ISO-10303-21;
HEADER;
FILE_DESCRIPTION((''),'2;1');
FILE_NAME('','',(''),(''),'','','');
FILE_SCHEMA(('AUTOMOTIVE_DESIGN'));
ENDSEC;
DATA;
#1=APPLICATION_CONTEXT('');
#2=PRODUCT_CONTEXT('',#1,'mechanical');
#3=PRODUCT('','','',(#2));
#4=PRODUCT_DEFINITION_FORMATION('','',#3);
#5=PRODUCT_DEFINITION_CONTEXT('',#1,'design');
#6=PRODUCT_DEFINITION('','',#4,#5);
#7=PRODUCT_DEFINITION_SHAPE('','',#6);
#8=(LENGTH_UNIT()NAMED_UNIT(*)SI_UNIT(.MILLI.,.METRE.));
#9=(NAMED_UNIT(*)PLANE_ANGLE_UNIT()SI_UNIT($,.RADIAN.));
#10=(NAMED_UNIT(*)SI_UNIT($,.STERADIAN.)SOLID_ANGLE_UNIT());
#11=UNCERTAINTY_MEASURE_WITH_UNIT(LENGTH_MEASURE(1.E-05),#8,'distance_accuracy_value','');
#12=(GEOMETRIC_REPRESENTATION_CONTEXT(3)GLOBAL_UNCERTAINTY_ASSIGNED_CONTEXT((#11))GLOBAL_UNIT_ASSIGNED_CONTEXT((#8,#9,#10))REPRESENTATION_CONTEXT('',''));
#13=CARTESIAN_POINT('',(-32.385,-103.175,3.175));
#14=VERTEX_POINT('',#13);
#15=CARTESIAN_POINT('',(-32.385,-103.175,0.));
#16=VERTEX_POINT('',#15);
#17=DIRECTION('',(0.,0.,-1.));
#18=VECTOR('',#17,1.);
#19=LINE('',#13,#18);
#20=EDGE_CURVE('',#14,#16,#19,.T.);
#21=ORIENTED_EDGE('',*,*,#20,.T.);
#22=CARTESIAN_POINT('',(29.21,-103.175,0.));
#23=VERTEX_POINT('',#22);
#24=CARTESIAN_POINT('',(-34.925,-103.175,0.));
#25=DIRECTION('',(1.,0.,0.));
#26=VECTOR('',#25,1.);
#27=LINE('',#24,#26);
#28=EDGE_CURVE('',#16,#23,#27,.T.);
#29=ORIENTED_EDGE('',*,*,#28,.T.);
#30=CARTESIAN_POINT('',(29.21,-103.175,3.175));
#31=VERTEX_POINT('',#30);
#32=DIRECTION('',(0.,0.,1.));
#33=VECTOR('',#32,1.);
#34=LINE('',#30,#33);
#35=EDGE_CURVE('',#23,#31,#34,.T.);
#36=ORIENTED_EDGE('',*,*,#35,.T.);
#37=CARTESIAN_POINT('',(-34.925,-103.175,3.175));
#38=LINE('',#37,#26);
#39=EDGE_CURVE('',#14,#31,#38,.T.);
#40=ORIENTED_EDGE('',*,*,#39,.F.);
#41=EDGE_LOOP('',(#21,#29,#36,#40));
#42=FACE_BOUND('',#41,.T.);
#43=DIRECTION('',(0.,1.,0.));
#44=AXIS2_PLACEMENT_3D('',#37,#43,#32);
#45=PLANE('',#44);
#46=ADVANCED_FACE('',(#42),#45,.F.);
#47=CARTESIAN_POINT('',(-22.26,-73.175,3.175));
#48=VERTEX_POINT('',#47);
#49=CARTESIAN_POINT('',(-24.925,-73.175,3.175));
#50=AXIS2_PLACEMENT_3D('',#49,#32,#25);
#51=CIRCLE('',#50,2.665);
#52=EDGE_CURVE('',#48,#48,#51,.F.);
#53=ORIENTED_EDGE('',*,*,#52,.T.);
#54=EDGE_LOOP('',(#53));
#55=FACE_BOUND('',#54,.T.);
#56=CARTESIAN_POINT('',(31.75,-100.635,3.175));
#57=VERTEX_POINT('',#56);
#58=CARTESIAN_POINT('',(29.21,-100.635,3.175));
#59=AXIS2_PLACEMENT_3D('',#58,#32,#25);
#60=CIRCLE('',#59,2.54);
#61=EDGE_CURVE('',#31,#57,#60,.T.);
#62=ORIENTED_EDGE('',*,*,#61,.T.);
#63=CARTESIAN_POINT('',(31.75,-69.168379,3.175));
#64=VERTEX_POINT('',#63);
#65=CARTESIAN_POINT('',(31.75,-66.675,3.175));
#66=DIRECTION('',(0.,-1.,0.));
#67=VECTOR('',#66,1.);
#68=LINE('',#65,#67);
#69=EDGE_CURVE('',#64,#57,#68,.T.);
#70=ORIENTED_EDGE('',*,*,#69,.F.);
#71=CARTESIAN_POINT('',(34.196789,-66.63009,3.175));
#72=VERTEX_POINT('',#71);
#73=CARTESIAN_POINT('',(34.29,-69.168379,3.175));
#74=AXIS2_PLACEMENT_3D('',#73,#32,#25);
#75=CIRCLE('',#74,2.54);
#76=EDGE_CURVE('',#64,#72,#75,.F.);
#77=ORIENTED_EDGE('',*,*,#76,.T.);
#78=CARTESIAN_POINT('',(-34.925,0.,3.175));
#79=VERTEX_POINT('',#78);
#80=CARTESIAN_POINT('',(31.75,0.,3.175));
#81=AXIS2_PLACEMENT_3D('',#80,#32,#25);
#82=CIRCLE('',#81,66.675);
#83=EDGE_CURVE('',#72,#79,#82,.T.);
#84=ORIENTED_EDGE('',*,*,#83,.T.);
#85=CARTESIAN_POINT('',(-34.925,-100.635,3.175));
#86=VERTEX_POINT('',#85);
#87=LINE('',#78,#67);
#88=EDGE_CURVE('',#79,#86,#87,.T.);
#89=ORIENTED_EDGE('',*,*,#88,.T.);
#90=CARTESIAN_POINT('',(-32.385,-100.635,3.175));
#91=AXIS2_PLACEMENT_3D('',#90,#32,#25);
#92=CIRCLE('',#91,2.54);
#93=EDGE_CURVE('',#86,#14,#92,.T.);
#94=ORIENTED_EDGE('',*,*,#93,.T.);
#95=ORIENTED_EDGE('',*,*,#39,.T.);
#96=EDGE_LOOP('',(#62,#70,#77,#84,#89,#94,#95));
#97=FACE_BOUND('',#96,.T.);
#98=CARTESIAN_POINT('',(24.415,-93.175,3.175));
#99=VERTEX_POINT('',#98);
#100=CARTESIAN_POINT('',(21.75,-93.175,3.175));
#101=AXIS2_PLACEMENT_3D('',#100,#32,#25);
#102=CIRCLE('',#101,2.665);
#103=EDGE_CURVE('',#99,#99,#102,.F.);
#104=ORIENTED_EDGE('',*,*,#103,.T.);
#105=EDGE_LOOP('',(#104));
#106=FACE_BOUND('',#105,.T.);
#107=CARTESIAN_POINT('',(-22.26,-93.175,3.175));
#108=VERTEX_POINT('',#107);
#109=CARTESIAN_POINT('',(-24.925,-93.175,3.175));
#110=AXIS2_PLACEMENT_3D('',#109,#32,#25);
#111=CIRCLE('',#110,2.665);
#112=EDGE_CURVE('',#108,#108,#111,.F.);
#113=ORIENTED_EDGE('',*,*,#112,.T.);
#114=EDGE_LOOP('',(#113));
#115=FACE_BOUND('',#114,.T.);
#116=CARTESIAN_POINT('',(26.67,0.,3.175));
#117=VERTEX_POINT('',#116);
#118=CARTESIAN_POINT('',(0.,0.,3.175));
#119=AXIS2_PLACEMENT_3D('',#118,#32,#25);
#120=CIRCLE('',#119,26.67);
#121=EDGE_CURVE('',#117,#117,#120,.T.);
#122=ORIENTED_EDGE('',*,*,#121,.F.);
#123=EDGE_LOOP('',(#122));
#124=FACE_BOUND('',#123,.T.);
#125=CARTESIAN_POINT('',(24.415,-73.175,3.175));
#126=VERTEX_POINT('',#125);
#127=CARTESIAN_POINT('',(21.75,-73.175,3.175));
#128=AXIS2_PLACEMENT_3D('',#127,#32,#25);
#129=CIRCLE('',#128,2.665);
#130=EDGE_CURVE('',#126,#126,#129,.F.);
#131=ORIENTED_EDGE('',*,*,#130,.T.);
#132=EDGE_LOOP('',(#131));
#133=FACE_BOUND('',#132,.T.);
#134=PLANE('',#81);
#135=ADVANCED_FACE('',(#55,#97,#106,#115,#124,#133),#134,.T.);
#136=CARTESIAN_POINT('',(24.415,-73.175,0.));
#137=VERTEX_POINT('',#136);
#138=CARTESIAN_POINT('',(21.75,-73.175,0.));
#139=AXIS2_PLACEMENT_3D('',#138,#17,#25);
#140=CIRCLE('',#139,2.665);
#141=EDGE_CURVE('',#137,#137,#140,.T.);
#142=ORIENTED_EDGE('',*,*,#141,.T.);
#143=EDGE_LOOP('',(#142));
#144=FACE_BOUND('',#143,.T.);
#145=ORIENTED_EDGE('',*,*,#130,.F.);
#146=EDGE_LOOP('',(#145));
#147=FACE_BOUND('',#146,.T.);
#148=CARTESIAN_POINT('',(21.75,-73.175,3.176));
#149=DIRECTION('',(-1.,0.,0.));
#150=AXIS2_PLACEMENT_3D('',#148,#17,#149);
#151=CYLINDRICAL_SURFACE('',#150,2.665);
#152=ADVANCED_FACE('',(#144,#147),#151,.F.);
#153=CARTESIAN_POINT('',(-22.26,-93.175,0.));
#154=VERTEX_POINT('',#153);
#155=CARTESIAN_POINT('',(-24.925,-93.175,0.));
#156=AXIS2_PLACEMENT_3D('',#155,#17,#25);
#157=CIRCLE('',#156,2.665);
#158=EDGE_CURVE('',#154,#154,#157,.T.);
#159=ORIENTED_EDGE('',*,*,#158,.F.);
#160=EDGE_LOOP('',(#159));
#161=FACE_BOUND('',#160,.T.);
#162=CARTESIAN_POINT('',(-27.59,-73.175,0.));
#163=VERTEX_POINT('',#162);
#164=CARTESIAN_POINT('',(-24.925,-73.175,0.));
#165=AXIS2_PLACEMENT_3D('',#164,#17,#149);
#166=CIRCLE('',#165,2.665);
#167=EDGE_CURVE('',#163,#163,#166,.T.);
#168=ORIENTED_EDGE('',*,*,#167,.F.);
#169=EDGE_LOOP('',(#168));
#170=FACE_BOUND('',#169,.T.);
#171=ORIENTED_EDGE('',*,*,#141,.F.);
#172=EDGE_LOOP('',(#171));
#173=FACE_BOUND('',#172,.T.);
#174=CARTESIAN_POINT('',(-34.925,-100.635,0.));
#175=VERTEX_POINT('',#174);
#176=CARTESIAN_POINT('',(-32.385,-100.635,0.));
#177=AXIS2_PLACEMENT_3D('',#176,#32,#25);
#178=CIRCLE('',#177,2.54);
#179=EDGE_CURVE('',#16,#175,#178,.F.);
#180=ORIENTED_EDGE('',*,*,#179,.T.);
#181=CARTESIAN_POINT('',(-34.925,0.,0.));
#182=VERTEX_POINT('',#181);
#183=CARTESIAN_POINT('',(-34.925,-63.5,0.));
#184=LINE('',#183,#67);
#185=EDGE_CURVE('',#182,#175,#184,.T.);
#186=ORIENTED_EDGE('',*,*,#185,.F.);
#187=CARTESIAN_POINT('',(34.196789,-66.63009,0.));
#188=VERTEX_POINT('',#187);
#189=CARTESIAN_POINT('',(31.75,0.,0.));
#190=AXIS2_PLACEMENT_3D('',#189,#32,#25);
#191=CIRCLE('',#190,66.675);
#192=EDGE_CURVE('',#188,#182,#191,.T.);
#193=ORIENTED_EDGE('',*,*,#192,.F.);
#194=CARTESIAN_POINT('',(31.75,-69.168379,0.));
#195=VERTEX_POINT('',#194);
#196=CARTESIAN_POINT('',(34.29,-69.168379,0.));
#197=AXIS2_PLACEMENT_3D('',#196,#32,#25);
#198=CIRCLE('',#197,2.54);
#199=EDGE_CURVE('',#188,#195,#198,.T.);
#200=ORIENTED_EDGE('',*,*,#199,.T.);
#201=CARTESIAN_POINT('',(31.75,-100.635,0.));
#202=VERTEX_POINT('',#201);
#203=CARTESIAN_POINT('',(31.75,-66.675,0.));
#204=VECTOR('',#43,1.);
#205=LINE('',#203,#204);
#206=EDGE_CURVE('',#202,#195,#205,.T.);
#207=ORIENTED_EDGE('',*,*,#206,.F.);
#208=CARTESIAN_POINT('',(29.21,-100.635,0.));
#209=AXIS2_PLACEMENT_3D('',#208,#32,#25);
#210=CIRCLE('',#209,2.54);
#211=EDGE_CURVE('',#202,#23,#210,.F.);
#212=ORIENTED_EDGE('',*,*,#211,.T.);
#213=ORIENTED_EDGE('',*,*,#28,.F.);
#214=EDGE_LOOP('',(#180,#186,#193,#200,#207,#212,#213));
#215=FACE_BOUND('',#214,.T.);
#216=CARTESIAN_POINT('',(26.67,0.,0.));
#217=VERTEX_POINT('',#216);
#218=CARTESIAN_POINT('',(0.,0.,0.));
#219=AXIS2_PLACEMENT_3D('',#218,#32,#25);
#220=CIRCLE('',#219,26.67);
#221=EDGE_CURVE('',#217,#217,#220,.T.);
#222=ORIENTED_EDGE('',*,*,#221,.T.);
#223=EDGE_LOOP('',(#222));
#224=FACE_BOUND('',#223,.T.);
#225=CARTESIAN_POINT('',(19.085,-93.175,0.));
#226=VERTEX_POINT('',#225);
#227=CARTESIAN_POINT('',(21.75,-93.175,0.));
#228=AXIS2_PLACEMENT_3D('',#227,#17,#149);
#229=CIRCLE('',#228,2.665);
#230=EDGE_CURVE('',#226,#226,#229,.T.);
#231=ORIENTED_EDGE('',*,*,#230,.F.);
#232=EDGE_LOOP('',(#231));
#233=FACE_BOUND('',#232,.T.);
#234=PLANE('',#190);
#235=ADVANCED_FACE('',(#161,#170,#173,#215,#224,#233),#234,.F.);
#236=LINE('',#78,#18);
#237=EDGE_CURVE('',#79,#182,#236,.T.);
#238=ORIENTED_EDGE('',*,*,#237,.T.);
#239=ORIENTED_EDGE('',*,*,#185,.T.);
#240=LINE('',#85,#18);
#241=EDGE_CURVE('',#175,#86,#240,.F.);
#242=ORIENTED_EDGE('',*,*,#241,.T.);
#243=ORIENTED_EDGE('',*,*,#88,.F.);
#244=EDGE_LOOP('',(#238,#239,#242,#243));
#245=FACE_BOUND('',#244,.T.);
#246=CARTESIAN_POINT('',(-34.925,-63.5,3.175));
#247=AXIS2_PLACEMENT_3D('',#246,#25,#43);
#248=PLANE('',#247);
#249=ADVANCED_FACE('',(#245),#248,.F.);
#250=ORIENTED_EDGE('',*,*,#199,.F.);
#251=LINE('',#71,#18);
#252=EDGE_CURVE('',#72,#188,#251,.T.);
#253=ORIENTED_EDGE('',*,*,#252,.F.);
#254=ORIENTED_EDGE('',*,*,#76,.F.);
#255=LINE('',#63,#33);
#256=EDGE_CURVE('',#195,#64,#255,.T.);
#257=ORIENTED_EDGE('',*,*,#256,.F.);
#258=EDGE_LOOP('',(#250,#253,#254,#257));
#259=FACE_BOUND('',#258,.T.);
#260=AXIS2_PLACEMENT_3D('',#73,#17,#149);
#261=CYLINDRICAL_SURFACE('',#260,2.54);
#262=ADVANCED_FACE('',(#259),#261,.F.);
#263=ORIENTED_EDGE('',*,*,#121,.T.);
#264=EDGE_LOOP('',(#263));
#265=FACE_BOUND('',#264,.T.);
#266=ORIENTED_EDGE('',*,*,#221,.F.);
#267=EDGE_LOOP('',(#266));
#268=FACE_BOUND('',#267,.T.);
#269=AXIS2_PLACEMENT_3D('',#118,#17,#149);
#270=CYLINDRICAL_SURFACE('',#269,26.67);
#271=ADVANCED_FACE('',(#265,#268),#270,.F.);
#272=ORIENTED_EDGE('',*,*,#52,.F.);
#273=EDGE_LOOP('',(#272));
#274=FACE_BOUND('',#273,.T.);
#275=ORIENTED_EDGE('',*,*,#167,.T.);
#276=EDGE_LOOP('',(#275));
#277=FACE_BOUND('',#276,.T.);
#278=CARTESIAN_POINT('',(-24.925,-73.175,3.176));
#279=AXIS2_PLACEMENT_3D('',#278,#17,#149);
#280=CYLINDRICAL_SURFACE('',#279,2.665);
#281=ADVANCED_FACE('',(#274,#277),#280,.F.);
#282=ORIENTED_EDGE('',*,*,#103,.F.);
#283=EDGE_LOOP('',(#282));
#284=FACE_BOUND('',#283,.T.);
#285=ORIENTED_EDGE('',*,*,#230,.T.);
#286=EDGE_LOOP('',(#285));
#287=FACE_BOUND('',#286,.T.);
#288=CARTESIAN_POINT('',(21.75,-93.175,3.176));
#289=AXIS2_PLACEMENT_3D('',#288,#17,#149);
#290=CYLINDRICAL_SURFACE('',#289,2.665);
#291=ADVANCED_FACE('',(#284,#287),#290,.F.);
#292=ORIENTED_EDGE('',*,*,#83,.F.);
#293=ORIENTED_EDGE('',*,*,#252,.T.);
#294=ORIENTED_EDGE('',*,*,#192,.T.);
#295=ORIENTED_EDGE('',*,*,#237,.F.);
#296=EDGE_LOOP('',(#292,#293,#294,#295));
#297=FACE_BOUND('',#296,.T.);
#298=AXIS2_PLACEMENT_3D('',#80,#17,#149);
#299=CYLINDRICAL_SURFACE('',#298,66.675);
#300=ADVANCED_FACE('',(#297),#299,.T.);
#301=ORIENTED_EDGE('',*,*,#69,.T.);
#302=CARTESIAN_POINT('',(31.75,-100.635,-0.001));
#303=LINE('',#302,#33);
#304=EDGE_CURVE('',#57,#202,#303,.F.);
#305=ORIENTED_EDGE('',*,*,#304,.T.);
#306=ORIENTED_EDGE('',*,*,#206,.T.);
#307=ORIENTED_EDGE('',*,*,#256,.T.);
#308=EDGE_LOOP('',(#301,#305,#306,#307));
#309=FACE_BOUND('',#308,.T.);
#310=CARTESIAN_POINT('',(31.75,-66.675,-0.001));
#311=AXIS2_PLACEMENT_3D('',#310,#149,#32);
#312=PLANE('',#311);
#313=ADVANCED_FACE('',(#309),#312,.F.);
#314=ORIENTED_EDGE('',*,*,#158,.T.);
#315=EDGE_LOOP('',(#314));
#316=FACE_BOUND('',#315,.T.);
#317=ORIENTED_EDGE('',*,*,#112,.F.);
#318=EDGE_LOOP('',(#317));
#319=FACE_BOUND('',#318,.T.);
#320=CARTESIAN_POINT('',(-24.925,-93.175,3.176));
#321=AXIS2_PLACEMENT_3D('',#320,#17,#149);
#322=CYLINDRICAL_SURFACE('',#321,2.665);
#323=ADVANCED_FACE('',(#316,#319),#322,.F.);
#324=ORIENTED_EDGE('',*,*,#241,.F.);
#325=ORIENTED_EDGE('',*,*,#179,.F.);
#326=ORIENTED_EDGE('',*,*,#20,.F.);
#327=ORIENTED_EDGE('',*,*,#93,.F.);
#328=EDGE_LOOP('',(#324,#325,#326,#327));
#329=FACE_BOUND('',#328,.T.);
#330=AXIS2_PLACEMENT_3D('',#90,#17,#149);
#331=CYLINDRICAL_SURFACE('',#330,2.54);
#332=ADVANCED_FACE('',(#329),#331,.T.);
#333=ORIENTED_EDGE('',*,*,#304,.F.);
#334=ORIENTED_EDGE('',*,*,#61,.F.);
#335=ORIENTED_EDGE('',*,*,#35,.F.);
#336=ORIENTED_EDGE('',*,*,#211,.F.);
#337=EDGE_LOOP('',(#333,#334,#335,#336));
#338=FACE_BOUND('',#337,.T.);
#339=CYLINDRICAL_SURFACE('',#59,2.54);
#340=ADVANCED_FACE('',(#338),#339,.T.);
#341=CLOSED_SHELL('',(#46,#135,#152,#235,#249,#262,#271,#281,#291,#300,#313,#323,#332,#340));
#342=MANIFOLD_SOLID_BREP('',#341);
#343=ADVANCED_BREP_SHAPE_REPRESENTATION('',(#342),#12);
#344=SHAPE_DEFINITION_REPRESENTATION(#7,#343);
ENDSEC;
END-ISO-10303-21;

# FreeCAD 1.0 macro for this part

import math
import FreeCAD as App
import Part
import Sketcher
Q = App.Units.Quantity


def edges_at(feature, points):
    """Names of the edges that pass closest to the given points."""
    edges = feature.Shape.Edges
    near = lambda p: min(range(len(edges)), key=lambda i: edges[i].distToShape(Part.Vertex(*p))[0])
    return sorted({f"Edge{near(p) + 1}" for p in points})

doc = App.newDocument("Part")
body = doc.addObject("PartDesign::Body", "Body")

sketch1 = doc.addObject("Sketcher::SketchObject", "Sketch")
body.addObject(sketch1)
sketch1.AttachmentSupport = (doc.XY_Plane, [""])
sketch1.MapMode = "FlatFace"
sketch1.addGeometry([
    Part.LineSegment(App.Vector(-35, 0, 0), App.Vector(-35, -103, 0)),
    Part.LineSegment(App.Vector(-35, -103, 0), App.Vector(98, -103, 0)),
    Part.LineSegment(App.Vector(98, -103, 0), App.Vector(98, 0, 0)),
    Part.ArcOfCircle(Part.Circle(App.Vector(32, 0, 0), App.Vector(0, 0, 1), 67), math.radians(0), math.radians(180)),
    Part.Circle(App.Vector(0, 0, 0), App.Vector(0, 0, 1), 27),
], False)
sketch1.addConstraint([
    Sketcher.Constraint("Coincident", 0, 2, 1, 1),
    Sketcher.Constraint("Coincident", 1, 2, 2, 1),
    Sketcher.Constraint("Tangent", 2, 2, 3, 1),
    Sketcher.Constraint("Tangent", 3, 2, 0, 1),
    Sketcher.Constraint("Vertical", 0),
    Sketcher.Constraint("Horizontal", 1),
    Sketcher.Constraint("Vertical", 2),
    Sketcher.Constraint("Coincident", 4, 3, -1, 1),
    Sketcher.Constraint("PointOnObject", 3, 3, -1),
    Sketcher.Constraint("Diameter", 4, Q("2.1 in")),
    Sketcher.Constraint("Radius", 3, Q("2.625 in")),
    Sketcher.Constraint("DistanceX", -1, 1, 3, 3, Q("1.25 in")),
    Sketcher.Constraint("DistanceY", 0, 2, 0, 1, Q("103.175 mm")),
])
pad1 = doc.addObject("PartDesign::Pad", "Pad")
body.addObject(pad1)
pad1.Profile = sketch1
pad1.Length = Q("0.125 in")

sketch2 = doc.addObject("Sketcher::SketchObject", "Sketch001")
body.addObject(sketch2)
sketch2.AttachmentSupport = (doc.XY_Plane, [""])
sketch2.MapMode = "FlatFace"
sketch2.AttachmentOffset = App.Placement(App.Vector(0, 0, 0.125 * 25.4), App.Rotation())
sketch2.addGeometry([
    Part.LineSegment(App.Vector(32, -67, 0), App.Vector(32, -103, 0)),
    Part.LineSegment(App.Vector(32, -103, 0), App.Vector(98, -103, 0)),
    Part.LineSegment(App.Vector(98, -103, 0), App.Vector(98, 0, 0)),
    Part.ArcOfCircle(Part.Circle(App.Vector(32, 0, 0), App.Vector(0, 0, 1), 67), math.radians(-90), math.radians(0)),
], False)
sketch2.addConstraint([
    Sketcher.Constraint("Coincident", 0, 2, 1, 1),
    Sketcher.Constraint("Coincident", 1, 2, 2, 1),
    Sketcher.Constraint("Tangent", 2, 2, 3, 2),
    Sketcher.Constraint("Coincident", 3, 1, 0, 1),
    Sketcher.Constraint("Vertical", 0),
    Sketcher.Constraint("Horizontal", 1),
    Sketcher.Constraint("Vertical", 2),
    Sketcher.Constraint("PointOnObject", 3, 3, -1),
    Sketcher.Constraint("Vertical", 3, 3, 0, 2),
    Sketcher.Constraint("Radius", 3, Q("2.625 in")),
    Sketcher.Constraint("DistanceX", -1, 1, 3, 3, Q("1.25 in")),
    Sketcher.Constraint("DistanceY", 0, 2, 0, 1, Q("36.5 mm")),
])
pocket1 = doc.addObject("PartDesign::Pocket", "Pocket")
body.addObject(pocket1)
pocket1.Profile = sketch2
pocket1.Type = "UpToFirst"

sketch3 = doc.addObject("Sketcher::SketchObject", "Sketch002")
body.addObject(sketch3)
sketch3.AttachmentSupport = (doc.XY_Plane, [""])
sketch3.MapMode = "FlatFace"
sketch3.addGeometry(Part.Circle(App.Vector(21.8, -93.2, 0), App.Vector(0, 0, 1), 2.7), False)
sketch3.addConstraint([
    Sketcher.Constraint("Diameter", 0, Q("5.33 mm")),
    Sketcher.Constraint("DistanceX", -1, 1, 0, 3, Q("21.75 mm")),
    Sketcher.Constraint("DistanceY", 0, 3, -1, 1, Q("93.175 mm")),
])
pocket2 = doc.addObject("PartDesign::Pocket", "Pocket001")
body.addObject(pocket2)
pocket2.Profile = sketch3
pocket2.Type = "UpToFirst"
pocket2.Reversed = True

sketch4 = doc.addObject("Sketcher::SketchObject", "Sketch003")
body.addObject(sketch4)
sketch4.AttachmentSupport = (doc.XY_Plane, [""])
sketch4.MapMode = "FlatFace"
sketch4.addGeometry(Part.Circle(App.Vector(21.8, -73.2, 0), App.Vector(0, 0, 1), 2.7), False)
sketch4.addConstraint([
    Sketcher.Constraint("Diameter", 0, Q("5.33 mm")),
    Sketcher.Constraint("DistanceX", -1, 1, 0, 3, Q("21.75 mm")),
    Sketcher.Constraint("DistanceY", 0, 3, -1, 1, Q("73.175 mm")),
])
pocket3 = doc.addObject("PartDesign::Pocket", "Pocket002")
body.addObject(pocket3)
pocket3.Profile = sketch4
pocket3.Type = "UpToFirst"
pocket3.Reversed = True

sketch5 = doc.addObject("Sketcher::SketchObject", "Sketch004")
body.addObject(sketch5)
sketch5.AttachmentSupport = (doc.XY_Plane, [""])
sketch5.MapMode = "FlatFace"
sketch5.addGeometry(Part.Circle(App.Vector(-24.9, -93.2, 0), App.Vector(0, 0, 1), 2.7), False)
sketch5.addConstraint([
    Sketcher.Constraint("Diameter", 0, Q("5.33 mm")),
    Sketcher.Constraint("DistanceX", 0, 3, -1, 1, Q("24.925 mm")),
    Sketcher.Constraint("DistanceY", 0, 3, -1, 1, Q("93.175 mm")),
])
pocket4 = doc.addObject("PartDesign::Pocket", "Pocket003")
body.addObject(pocket4)
pocket4.Profile = sketch5
pocket4.Type = "UpToFirst"
pocket4.Reversed = True

sketch6 = doc.addObject("Sketcher::SketchObject", "Sketch005")
body.addObject(sketch6)
sketch6.AttachmentSupport = (doc.XY_Plane, [""])
sketch6.MapMode = "FlatFace"
sketch6.addGeometry(Part.Circle(App.Vector(-24.9, -73.2, 0), App.Vector(0, 0, 1), 2.7), False)
sketch6.addConstraint([
    Sketcher.Constraint("Diameter", 0, Q("5.33 mm")),
    Sketcher.Constraint("DistanceX", 0, 3, -1, 1, Q("24.925 mm")),
    Sketcher.Constraint("DistanceY", 0, 3, -1, 1, Q("73.175 mm")),
])
pocket5 = doc.addObject("PartDesign::Pocket", "Pocket004")
body.addObject(pocket5)
pocket5.Profile = sketch6
pocket5.Type = "UpToFirst"
pocket5.Reversed = True
doc.recompute()

fillet = doc.addObject("PartDesign::Fillet", "Fillet")
body.addObject(fillet)
fillet.Base = (pocket5, edges_at(pocket5, [(-34.925, -103.175, 1.587), (31.75, -66.675, 1.587), (31.75, -103.175, 1.587)]))
fillet.Radius = Q("0.1 in")

doc.recompute()
